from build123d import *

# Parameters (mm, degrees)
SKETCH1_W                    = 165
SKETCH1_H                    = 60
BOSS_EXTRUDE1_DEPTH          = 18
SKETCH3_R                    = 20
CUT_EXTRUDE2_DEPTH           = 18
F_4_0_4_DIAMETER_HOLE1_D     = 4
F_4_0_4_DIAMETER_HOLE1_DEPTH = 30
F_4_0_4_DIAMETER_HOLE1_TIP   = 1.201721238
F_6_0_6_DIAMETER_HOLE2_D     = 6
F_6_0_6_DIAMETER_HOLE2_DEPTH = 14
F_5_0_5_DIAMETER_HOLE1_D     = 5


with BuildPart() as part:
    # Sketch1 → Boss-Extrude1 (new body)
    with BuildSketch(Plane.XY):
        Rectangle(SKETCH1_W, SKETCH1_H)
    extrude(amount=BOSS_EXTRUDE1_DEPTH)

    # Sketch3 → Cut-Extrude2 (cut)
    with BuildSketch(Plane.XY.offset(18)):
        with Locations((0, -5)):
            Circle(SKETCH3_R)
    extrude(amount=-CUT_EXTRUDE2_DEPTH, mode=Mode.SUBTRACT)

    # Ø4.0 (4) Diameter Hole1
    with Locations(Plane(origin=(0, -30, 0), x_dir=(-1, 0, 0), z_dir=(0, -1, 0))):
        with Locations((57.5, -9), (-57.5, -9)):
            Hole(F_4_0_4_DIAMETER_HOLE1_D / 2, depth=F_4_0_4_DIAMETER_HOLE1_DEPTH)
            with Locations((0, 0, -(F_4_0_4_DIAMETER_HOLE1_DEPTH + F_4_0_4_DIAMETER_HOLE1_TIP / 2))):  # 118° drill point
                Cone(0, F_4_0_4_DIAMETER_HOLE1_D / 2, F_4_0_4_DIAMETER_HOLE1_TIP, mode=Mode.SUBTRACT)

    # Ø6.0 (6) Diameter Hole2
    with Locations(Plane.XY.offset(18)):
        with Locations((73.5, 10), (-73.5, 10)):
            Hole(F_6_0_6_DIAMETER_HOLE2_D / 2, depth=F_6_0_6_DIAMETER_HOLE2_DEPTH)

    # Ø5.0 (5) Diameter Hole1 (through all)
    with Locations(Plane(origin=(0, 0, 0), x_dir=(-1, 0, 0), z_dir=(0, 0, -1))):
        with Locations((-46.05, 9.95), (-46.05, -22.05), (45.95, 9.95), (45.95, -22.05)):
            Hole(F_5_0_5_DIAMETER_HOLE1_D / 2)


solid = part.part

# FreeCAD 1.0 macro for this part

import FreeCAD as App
import Part
import Sketcher
from FreeCAD import Vector


def add_polygon(sketch, points):
    """Adds a closed chain of lines whose ends are joined by coincident constraints."""
    first, n = sketch.GeometryCount, len(points)
    for a, b in zip(points, points[1:] + points[:1]):
        sketch.addGeometry(Part.LineSegment(App.Vector(*a, 0), App.Vector(*b, 0)), False)
    for i in range(n):
        sketch.addConstraint(Sketcher.Constraint("Coincident", first + i, 2, first + (i + 1) % n, 1))

doc = App.newDocument("Part")
body = doc.addObject("PartDesign::Body", "Body")

sketch1 = body.newObject("Sketcher::SketchObject", "Sketch")
sketch1.AttachmentSupport = (doc.getObject("XY_Plane"), [""])
sketch1.MapMode = "FlatFace"
add_polygon(sketch1, [(-82, 30), (-82, -30), (82, -30), (82, 30)])
sketch1.addConstraint(Sketcher.Constraint("Vertical", 0))
sketch1.addConstraint(Sketcher.Constraint("Horizontal", 1))
sketch1.addConstraint(Sketcher.Constraint("Vertical", 2))
sketch1.addConstraint(Sketcher.Constraint("Horizontal", 3))
sketch1.addConstraint(Sketcher.Constraint("Symmetric", 0, 2, 2, 2, -1, 1))
sketch1.addConstraint(Sketcher.Constraint("DistanceX", 1, 1, 1, 2, 165.0))
sketch1.addConstraint(Sketcher.Constraint("DistanceY", 0, 2, 0, 1, 60.0))
pad1 = body.newObject("PartDesign::Pad", "Pad")
pad1.Profile = sketch1
pad1.Length = 18

sketch2 = body.newObject("Sketcher::SketchObject", "Sketch001")
sketch2.AttachmentSupport = (doc.getObject("XY_Plane"), [""])
sketch2.MapMode = "FlatFace"
sketch2.AttachmentOffset = App.Placement(Vector(0, 0, 18), App.Rotation())
sketch2.addGeometry(Part.Circle(Vector(0, -5, 0), Vector(0, 0, 1), 20), False)
sketch2.addConstraint(Sketcher.Constraint("PointOnObject", 0, 3, -2))
sketch2.addConstraint(Sketcher.Constraint("Diameter", 0, 40.0))
sketch2.addConstraint(Sketcher.Constraint("DistanceY", 0, 3, -1, 1, 5.0))
pocket1 = body.newObject("PartDesign::Pocket", "Pocket")
pocket1.Profile = sketch2
pocket1.Length = 18

sketch3 = body.newObject("Sketcher::SketchObject", "Sketch002")
sketch3.AttachmentSupport = (doc.getObject("XZ_Plane"), [""])
sketch3.MapMode = "FlatFace"
sketch3.AttachmentOffset = App.Placement(Vector(0, 0, 30), App.Rotation())
sketch3.addGeometry(Part.Circle(Vector(-57.5, 9, 0), Vector(0, 0, 1), 2), False)
sketch3.addGeometry(Part.Circle(Vector(57.5, 9, 0), Vector(0, 0, 1), 2), False)
sketch3.addConstraint(Sketcher.Constraint("Equal", 0, 1))
sketch3.addConstraint(Sketcher.Constraint("Symmetric", 0, 3, 1, 3, -2))
sketch3.addConstraint(Sketcher.Constraint("Diameter", 0, 4.0))
sketch3.addConstraint(Sketcher.Constraint("DistanceY", -1, 1, 0, 3, 9.0))
sketch3.addConstraint(Sketcher.Constraint("DistanceX", 0, 3, 1, 3, 115.0))
doc.recompute()
hole = body.newObject("PartDesign::Hole", "Hole")
hole.Profile = sketch3
hole.ThreadType = "None"
hole.Diameter = 4
hole.DepthType = "Dimension"
hole.Depth = 30
hole.DrillPoint = "Angled"
hole.DrillPointAngle = 118

sketch4 = body.newObject("Sketcher::SketchObject", "Sketch003")
sketch4.AttachmentSupport = (doc.getObject("XY_Plane"), [""])
sketch4.MapMode = "FlatFace"
sketch4.AttachmentOffset = App.Placement(Vector(0, 0, 18), App.Rotation())
sketch4.addGeometry(Part.Circle(Vector(73.5, 10, 0), Vector(0, 0, 1), 3), False)
sketch4.addGeometry(Part.Circle(Vector(-73.5, 10, 0), Vector(0, 0, 1), 3), False)
sketch4.addConstraint(Sketcher.Constraint("Equal", 0, 1))
sketch4.addConstraint(Sketcher.Constraint("Symmetric", 0, 3, 1, 3, -2))
sketch4.addConstraint(Sketcher.Constraint("Diameter", 0, 6.0))
sketch4.addConstraint(Sketcher.Constraint("DistanceY", -1, 1, 0, 3, 10.0))
sketch4.addConstraint(Sketcher.Constraint("DistanceX", 1, 3, 0, 3, 147.0))
doc.recompute()
hole2 = body.newObject("PartDesign::Hole", "Hole001")
hole2.Profile = sketch4
hole2.ThreadType = "None"
hole2.Diameter = 6
hole2.DepthType = "Dimension"
hole2.Depth = 14
hole2.DrillPoint = "Flat"

sketch5 = body.newObject("Sketcher::SketchObject", "Sketch004")
sketch5.AttachmentSupport = (doc.getObject("XY_Plane"), [""])
sketch5.MapMode = "FlatFace"
sketch5.addGeometry(Part.Circle(Vector(46, 9.9, 0), Vector(0, 0, 1), 2.5), False)
sketch5.addGeometry(Part.Circle(Vector(46, -22.1, 0), Vector(0, 0, 1), 2.5), False)
sketch5.addGeometry(Part.Circle(Vector(-46, 9.9, 0), Vector(0, 0, 1), 2.5), False)
sketch5.addGeometry(Part.Circle(Vector(-46, -22.1, 0), Vector(0, 0, 1), 2.5), False)
sketch5.addConstraint(Sketcher.Constraint("Equal", 0, 1))
sketch5.addConstraint(Sketcher.Constraint("Equal", 1, 2))
sketch5.addConstraint(Sketcher.Constraint("Equal", 2, 3))
sketch5.addConstraint(Sketcher.Constraint("Horizontal", 0, 3, 2, 3))
sketch5.addConstraint(Sketcher.Constraint("Horizontal", 1, 3, 3, 3))
sketch5.addConstraint(Sketcher.Constraint("Vertical", 0, 3, 1, 3))
sketch5.addConstraint(Sketcher.Constraint("Vertical", 2, 3, 3, 3))
sketch5.addConstraint(Sketcher.Constraint("Diameter", 0, 5.0))
sketch5.addConstraint(Sketcher.Constraint("DistanceY", 1, 3, 0, 3, 32.0))
sketch5.addConstraint(Sketcher.Constraint("DistanceX", 2, 3, 0, 3, 92.0))
sketch5.addConstraint(Sketcher.Constraint("DistanceX", -1, 1, 0, 3, 46.05))
sketch5.addConstraint(Sketcher.Constraint("DistanceY", -1, 1, 0, 3, 9.95))
doc.recompute()
hole3 = body.newObject("PartDesign::Hole", "Hole002")
hole3.Profile = sketch5
hole3.ThreadType = "None"
hole3.Diameter = 5
hole3.DepthType = "ThroughAll"
hole3.Reversed = True

doc.recompute()
